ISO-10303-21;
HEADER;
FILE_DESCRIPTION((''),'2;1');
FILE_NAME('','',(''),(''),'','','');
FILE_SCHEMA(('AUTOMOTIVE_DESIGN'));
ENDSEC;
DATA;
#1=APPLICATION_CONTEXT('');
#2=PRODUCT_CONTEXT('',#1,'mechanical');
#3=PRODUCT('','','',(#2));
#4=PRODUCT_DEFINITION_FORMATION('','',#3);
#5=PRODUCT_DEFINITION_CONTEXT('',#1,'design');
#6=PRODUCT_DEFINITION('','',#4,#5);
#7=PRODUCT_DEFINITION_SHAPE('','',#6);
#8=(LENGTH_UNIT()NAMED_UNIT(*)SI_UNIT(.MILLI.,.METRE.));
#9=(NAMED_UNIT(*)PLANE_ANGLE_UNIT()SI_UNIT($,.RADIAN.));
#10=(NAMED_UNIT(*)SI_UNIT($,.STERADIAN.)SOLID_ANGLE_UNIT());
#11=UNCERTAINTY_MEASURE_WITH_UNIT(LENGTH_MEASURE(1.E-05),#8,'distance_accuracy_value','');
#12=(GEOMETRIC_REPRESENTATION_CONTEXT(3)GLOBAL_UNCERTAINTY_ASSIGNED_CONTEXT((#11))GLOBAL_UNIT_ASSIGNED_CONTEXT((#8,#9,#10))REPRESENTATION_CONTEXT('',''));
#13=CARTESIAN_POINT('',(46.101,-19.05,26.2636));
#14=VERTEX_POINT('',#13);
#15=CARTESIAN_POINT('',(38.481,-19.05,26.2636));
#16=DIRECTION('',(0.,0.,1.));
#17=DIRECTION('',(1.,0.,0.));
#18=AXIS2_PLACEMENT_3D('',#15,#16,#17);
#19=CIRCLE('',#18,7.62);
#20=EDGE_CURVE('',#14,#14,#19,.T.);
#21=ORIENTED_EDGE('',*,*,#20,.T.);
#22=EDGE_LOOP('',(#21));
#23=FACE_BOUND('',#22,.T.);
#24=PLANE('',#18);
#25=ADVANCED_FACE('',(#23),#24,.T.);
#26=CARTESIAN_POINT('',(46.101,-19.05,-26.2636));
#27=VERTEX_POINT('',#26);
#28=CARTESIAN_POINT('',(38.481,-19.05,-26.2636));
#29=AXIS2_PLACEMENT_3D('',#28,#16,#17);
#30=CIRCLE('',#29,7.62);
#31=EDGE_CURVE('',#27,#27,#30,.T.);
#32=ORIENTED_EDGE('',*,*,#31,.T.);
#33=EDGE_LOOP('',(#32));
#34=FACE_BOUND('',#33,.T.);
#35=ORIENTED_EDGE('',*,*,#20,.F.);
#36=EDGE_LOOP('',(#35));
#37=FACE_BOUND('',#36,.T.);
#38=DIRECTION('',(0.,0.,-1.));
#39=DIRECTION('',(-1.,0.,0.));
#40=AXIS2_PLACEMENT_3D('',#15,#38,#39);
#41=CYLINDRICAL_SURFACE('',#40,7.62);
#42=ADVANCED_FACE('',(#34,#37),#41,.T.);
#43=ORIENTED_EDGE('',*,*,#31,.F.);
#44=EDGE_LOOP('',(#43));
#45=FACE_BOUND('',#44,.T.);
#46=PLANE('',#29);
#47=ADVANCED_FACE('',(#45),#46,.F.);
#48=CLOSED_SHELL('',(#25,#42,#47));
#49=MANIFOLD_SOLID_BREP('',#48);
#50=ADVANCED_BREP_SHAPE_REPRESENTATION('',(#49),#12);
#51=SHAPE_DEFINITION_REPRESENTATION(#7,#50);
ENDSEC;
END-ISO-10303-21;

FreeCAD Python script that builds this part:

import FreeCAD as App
import Part
import Sketcher
Q = App.Units.Quantity

doc = App.newDocument("Part")
body = doc.addObject("PartDesign::Body", "Body")

# Sketch on XY plane
sketch1 = body.newObject("Sketcher::SketchObject", "Sketch")
sketch1.AttachmentSupport = (doc.getObject("XY_Plane"), [""])
sketch1.MapMode = "FlatFace"
sketch1.addGeometry(Part.Circle(App.Vector(38.481, -19.05, 0), App.Vector(0, 0, 1), 7.62), False)
sketch1.addConstraint([
    Sketcher.Constraint("Diameter", 0, Q("0.6 in")),
    Sketcher.Constraint("DistanceY", 0, 3, -1, 1, Q("0.75 in")),
    Sketcher.Constraint("DistanceX", -1, 1, 0, 3, Q("1.515 in")),
])
pad1 = body.newObject("PartDesign::Pad", "Pad")
pad1.Profile = sketch1
pad1.Length = Q("2.068 in")
pad1.Midplane = True

doc.recompute()
